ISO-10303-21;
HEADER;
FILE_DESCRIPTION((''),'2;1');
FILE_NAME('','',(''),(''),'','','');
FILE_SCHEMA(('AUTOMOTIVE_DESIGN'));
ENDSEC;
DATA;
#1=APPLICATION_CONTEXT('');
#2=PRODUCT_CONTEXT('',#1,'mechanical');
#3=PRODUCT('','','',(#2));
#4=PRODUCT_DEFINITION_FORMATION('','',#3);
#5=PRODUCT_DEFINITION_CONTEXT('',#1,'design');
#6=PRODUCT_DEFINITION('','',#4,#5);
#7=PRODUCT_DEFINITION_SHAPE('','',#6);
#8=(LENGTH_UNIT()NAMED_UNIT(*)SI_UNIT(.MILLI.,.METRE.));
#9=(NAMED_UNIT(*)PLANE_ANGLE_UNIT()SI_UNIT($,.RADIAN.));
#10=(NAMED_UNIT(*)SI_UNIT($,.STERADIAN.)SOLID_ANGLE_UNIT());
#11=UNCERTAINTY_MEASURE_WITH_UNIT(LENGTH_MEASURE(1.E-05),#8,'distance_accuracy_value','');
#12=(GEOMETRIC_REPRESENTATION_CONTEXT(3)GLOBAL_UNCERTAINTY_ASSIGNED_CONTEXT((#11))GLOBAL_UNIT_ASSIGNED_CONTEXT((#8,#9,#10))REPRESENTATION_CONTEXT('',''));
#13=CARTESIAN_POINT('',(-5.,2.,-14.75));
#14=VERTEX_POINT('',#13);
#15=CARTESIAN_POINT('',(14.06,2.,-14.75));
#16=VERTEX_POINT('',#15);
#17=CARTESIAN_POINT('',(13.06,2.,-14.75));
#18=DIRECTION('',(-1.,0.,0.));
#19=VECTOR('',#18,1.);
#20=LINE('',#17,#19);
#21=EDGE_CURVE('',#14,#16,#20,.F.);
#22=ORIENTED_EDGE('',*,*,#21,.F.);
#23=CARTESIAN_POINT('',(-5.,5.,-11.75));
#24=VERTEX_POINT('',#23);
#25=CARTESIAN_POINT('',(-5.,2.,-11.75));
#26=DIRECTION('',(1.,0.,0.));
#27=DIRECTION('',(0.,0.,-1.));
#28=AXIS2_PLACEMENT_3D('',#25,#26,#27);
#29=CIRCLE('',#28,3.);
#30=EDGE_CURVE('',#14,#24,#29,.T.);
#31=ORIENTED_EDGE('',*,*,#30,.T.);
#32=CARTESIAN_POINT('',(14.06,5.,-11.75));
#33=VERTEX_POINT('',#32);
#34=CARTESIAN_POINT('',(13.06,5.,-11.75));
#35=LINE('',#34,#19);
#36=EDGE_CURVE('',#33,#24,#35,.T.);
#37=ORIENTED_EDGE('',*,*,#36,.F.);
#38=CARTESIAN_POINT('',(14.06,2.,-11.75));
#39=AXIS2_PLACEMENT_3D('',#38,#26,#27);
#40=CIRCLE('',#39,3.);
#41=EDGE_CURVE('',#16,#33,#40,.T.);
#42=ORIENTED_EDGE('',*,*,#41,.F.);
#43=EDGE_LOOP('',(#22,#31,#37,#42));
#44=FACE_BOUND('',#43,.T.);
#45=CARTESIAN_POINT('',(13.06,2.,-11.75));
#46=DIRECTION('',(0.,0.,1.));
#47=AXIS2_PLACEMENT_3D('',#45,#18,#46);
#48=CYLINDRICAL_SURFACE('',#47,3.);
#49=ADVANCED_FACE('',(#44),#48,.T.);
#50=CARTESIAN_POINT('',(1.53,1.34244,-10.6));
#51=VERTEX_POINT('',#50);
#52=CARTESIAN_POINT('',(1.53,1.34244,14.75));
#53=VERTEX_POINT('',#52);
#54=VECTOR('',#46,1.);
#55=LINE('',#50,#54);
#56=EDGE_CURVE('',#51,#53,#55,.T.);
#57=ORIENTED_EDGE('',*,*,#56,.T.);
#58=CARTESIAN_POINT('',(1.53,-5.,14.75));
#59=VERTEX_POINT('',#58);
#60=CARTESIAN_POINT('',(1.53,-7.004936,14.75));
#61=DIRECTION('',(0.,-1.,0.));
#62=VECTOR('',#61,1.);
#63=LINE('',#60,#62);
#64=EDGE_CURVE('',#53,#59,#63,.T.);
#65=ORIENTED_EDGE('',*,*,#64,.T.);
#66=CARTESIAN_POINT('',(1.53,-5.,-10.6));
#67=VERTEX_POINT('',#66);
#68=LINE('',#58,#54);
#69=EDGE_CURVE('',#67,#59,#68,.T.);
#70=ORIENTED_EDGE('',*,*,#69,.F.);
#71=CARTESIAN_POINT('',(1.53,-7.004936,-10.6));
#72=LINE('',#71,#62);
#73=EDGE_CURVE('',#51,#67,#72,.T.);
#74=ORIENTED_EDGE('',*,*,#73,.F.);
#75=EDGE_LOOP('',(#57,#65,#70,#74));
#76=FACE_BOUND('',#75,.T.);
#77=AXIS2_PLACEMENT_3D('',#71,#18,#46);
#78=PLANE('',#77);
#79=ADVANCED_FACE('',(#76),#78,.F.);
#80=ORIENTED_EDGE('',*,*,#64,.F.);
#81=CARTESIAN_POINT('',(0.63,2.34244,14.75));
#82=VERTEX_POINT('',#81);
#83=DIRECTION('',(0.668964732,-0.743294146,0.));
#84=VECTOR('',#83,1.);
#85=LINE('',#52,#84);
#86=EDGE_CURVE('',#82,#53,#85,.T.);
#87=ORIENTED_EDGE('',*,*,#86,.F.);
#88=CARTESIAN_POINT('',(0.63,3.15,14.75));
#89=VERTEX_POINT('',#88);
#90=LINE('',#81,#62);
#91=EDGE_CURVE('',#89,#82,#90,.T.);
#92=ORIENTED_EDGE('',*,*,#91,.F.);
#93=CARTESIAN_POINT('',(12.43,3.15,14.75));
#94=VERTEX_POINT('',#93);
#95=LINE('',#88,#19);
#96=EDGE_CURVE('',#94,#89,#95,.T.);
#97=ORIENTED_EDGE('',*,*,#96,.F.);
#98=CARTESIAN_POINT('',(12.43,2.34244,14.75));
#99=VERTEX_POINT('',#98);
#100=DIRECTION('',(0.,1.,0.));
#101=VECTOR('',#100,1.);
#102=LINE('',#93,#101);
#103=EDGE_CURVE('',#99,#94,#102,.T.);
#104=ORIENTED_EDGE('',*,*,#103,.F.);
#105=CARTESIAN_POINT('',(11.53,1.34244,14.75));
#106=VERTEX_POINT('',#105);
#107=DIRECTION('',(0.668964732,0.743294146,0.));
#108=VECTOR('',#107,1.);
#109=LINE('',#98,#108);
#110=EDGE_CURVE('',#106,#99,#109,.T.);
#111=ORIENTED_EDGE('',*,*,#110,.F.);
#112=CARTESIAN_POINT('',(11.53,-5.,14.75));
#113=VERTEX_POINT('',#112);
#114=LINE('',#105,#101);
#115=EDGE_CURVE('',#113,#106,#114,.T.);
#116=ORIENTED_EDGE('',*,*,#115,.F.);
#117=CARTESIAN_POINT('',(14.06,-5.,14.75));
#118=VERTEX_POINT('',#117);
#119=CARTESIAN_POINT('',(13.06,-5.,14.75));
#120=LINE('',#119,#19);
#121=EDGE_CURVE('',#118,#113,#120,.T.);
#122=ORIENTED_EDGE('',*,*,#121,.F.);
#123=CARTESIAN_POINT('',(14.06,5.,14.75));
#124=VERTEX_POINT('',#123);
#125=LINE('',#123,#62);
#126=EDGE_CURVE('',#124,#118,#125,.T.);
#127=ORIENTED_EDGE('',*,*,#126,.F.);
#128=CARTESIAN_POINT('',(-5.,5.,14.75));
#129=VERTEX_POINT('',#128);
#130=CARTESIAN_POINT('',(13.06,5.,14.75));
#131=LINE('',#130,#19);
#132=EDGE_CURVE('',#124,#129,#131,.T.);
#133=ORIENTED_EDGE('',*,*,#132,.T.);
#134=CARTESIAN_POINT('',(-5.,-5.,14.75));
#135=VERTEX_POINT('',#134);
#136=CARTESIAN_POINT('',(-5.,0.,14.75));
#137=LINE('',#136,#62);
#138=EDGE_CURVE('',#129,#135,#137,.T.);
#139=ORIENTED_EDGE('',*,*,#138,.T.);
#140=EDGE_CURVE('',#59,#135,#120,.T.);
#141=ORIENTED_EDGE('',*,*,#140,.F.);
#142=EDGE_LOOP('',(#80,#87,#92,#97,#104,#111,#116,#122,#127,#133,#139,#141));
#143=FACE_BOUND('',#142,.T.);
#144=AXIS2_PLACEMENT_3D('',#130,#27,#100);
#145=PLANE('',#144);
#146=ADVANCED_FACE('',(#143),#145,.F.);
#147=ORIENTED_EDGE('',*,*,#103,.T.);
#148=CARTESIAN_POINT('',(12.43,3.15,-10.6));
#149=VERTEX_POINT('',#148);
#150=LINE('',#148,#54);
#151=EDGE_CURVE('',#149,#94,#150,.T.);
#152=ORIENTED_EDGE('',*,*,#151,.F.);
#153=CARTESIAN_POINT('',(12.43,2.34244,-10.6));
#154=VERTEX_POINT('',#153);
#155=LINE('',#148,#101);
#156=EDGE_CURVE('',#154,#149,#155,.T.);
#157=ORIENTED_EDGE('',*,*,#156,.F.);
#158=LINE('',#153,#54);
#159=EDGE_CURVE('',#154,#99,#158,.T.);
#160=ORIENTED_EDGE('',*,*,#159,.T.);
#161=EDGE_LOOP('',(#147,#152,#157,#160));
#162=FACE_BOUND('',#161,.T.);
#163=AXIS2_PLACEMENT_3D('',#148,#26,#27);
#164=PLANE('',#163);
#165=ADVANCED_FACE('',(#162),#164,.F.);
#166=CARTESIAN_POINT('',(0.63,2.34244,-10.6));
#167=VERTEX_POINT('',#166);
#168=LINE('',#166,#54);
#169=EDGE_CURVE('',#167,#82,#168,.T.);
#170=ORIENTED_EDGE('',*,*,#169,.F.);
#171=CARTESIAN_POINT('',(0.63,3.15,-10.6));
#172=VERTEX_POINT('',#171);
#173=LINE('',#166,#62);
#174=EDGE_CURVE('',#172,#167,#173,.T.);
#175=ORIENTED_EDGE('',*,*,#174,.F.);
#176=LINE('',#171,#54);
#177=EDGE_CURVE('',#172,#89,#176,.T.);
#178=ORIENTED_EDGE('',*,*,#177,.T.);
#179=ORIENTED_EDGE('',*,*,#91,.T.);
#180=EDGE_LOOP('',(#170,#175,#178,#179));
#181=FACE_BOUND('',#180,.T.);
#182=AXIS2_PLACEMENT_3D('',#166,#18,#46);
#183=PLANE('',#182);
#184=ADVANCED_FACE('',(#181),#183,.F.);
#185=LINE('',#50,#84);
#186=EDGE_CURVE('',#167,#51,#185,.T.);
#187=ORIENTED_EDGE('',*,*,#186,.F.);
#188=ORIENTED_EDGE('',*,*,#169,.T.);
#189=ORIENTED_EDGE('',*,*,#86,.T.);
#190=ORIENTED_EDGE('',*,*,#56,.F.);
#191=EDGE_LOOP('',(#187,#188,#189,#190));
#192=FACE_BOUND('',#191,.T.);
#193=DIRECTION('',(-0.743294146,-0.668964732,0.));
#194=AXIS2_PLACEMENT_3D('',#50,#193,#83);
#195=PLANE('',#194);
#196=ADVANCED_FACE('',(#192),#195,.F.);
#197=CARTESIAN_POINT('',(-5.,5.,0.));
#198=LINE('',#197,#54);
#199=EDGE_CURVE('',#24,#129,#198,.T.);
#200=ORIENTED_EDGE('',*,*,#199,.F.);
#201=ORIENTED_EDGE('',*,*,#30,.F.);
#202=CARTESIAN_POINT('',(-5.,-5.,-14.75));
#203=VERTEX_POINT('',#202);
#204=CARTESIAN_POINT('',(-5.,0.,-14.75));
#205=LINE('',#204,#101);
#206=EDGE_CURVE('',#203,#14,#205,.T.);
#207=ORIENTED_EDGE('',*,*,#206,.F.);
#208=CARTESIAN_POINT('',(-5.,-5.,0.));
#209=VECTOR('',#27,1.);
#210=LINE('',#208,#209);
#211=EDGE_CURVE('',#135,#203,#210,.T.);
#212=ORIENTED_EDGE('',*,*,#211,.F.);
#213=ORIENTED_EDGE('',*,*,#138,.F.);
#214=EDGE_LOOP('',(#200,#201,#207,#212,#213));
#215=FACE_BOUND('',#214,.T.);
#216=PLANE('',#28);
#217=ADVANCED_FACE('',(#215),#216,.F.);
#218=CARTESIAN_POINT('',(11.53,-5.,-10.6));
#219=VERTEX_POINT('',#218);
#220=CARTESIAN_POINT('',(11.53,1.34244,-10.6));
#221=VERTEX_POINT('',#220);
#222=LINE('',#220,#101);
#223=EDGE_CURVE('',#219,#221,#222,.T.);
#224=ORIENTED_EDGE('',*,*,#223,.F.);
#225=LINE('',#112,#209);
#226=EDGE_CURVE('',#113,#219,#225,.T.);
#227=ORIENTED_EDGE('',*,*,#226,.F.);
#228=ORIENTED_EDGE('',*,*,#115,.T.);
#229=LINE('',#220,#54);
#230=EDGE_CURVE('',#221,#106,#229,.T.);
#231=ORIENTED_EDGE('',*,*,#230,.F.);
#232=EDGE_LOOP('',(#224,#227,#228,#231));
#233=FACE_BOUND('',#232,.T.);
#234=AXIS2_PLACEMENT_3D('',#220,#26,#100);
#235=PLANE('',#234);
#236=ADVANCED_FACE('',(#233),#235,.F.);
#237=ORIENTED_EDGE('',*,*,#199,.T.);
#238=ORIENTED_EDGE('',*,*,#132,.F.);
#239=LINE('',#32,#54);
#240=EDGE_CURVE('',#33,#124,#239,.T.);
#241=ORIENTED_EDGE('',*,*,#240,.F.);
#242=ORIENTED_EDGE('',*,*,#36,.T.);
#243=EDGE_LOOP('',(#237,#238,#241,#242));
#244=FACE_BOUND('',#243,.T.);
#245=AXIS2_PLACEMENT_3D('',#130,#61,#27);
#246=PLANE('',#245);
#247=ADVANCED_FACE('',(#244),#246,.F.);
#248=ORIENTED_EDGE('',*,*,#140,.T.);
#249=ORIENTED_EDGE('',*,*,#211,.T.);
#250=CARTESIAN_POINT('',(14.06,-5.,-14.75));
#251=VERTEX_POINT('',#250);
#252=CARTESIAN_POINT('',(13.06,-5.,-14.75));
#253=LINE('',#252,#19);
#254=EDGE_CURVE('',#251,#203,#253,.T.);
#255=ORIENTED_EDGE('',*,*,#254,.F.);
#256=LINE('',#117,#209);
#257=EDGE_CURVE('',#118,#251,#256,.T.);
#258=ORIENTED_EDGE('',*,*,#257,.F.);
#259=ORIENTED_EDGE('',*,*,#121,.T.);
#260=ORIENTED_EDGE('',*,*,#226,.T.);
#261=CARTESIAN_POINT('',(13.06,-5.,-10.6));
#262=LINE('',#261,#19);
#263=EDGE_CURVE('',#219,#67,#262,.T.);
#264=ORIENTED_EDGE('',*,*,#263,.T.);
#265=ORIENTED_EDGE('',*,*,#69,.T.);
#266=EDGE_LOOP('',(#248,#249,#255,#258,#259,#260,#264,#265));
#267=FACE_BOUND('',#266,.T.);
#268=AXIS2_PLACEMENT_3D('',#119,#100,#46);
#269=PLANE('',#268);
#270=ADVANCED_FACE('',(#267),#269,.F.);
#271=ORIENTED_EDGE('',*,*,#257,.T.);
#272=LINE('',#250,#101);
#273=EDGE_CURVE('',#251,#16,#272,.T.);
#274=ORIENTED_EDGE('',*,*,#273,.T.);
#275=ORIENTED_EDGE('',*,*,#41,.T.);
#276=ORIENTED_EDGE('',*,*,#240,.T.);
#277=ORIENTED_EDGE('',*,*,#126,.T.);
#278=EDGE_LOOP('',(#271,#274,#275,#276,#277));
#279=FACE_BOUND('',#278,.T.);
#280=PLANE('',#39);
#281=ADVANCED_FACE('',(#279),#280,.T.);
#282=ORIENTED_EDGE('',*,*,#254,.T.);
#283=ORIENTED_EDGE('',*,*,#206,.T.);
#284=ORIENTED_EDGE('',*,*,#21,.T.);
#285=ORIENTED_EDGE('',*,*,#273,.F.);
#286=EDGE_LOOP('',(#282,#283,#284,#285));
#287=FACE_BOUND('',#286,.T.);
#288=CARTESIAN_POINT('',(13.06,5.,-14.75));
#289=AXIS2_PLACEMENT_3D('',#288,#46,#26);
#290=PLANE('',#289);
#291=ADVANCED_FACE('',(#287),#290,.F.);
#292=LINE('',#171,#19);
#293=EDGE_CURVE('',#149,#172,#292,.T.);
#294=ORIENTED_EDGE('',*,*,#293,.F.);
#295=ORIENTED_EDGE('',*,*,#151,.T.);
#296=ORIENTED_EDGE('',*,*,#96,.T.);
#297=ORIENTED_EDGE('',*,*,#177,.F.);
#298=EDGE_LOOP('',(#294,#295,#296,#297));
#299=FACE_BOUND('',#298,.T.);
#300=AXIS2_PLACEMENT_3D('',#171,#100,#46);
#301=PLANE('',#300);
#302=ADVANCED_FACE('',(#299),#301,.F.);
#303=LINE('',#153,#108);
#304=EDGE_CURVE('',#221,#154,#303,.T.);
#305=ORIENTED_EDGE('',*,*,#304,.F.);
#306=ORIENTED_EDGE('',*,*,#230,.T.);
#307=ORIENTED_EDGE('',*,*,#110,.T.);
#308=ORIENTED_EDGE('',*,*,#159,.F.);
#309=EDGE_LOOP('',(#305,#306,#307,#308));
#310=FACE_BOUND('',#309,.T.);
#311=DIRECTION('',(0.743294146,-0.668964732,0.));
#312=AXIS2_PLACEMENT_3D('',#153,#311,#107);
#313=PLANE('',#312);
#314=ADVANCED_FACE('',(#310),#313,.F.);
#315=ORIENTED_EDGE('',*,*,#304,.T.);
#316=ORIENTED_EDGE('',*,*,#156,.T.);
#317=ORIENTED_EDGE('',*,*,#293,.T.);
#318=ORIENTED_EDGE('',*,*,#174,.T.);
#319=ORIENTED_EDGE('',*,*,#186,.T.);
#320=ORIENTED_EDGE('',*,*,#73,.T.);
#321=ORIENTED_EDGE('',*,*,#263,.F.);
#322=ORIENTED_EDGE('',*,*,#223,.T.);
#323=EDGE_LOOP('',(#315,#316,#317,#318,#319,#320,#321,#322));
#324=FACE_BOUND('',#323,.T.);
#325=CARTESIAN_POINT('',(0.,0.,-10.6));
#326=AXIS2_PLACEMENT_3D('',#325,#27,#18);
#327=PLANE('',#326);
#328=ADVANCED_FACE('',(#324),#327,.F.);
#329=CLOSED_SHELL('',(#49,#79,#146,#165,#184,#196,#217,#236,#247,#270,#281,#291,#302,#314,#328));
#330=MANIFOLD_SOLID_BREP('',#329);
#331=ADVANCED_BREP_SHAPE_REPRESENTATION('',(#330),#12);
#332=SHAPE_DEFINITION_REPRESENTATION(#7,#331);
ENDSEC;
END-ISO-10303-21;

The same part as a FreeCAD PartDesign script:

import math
import FreeCAD as App
import Part
import Sketcher
from FreeCAD import Vector


def edges_at(feature, points):
    """Names of the edges that pass closest to the given points."""
    edges = feature.Shape.Edges
    near = lambda p: min(range(len(edges)), key=lambda i: edges[i].distToShape(Part.Vertex(*p))[0])
    return sorted({f"Edge{near(p) + 1}" for p in points})

doc = App.newDocument("Part")
body = doc.addObject("PartDesign::Body", "Body")

sketch1 = doc.addObject("Sketcher::SketchObject", "Sketch")
body.addObject(sketch1)
sketch1.AttachmentSupport = (doc.YZ_Plane, [""])
sketch1.MapMode = "FlatFace"
sketch1.addGeometry([
    Part.LineSegment(Vector(5, 15, 0), Vector(-5, 15, 0)),
    Part.LineSegment(Vector(-5, 15, 0), Vector(-5, -15, 0)),
    Part.LineSegment(Vector(-5, -15, 0), Vector(5, -15, 0)),
    Part.LineSegment(Vector(5, -15, 0), Vector(5, 15, 0)),
], False)
sketch1.addConstraint([
    Sketcher.Constraint("Coincident", 0, 2, 1, 1),
    Sketcher.Constraint("Coincident", 1, 2, 2, 1),
    Sketcher.Constraint("Coincident", 2, 2, 3, 1),
    Sketcher.Constraint("Coincident", 3, 2, 0, 1),
    Sketcher.Constraint("Horizontal", 0),
    Sketcher.Constraint("Vertical", 1),
    Sketcher.Constraint("Horizontal", 2),
    Sketcher.Constraint("Vertical", 3),
    Sketcher.Constraint("Symmetric", 0, 2, 2, 2, -1, 1),
    Sketcher.Constraint("DistanceX", 0, 2, 0, 1, 10.0),
    Sketcher.Constraint("DistanceY", 1, 2, 1, 1, 29.5),
])
pad1 = doc.addObject("PartDesign::Pad", "Pad")
body.addObject(pad1)
pad1.Profile = sketch1
pad1.Length = 13.06
doc.recompute()

fillet = doc.addObject("PartDesign::Fillet", "Fillet")
body.addObject(fillet)
fillet.Base = (pad1, edges_at(pad1, [(6.53, 5, -14.75)]))
fillet.Radius = 3

sketch2 = doc.addObject("Sketcher::SketchObject", "Sketch001")
body.addObject(sketch2)
sketch2.AttachmentSupport = (doc.XY_Plane, [""])
sketch2.MapMode = "FlatFace"
sketch2.AttachmentOffset = App.Placement(Vector(0, 0, 14.75), App.Rotation())
sketch2.addGeometry([
    Part.LineSegment(Vector(1.5, -7, 0), Vector(11.5, -7, 0)),
    Part.LineSegment(Vector(11.5, -7, 0), Vector(11.5, 1.3, 0)),
    Part.LineSegment(Vector(11.5, 1.3, 0), Vector(12.4, 2.3, 0)),
    Part.LineSegment(Vector(12.4, 2.3, 0), Vector(12.4, 3.1, 0)),
    Part.LineSegment(Vector(12.4, 3.1, 0), Vector(0.6, 3.1, 0)),
    Part.LineSegment(Vector(0.6, 3.1, 0), Vector(0.6, 2.3, 0)),
    Part.LineSegment(Vector(0.6, 2.3, 0), Vector(1.5, 1.3, 0)),
    Part.LineSegment(Vector(1.5, 1.3, 0), Vector(1.5, -7, 0)),
], False)
sketch2.addConstraint([
    Sketcher.Constraint("Coincident", 0, 2, 1, 1),
    Sketcher.Constraint("Coincident", 1, 2, 2, 1),
    Sketcher.Constraint("Coincident", 2, 2, 3, 1),
    Sketcher.Constraint("Coincident", 3, 2, 4, 1),
    Sketcher.Constraint("Coincident", 4, 2, 5, 1),
    Sketcher.Constraint("Coincident", 5, 2, 6, 1),
    Sketcher.Constraint("Coincident", 6, 2, 7, 1),
    Sketcher.Constraint("Coincident", 7, 2, 0, 1),
    Sketcher.Constraint("Horizontal", 0),
    Sketcher.Constraint("Vertical", 1),
    Sketcher.Constraint("Vertical", 3),
    Sketcher.Constraint("Horizontal", 4),
    Sketcher.Constraint("Vertical", 5),
    Sketcher.Constraint("Vertical", 7),
    Sketcher.Constraint("Horizontal", 2, 2, 5, 2),
    Sketcher.Constraint("Horizontal", 1, 2, 6, 2),
    Sketcher.Constraint("Equal", 2, 6),
    Sketcher.Constraint("DistanceX", 0, 1, 0, 2, 10.0),
    Sketcher.Constraint("DistanceX", 4, 2, 4, 1, 11.8),
    Sketcher.Constraint("DistanceY", 1, 2, 2, 2, 1.0),
    Sketcher.Constraint("DistanceX", -1, 1, 0, 2, 11.53),
    Sketcher.Constraint("DistanceY", -1, 1, 3, 2, 3.15),
    Sketcher.Constraint("DistanceY", 3, 1, 3, 2, 0.80756),
    Sketcher.Constraint("DistanceY", 1, 1, 1, 2, 8.347375),
])
pocket1 = doc.addObject("PartDesign::Pocket", "Pocket")
body.addObject(pocket1)
pocket1.Profile = sketch2
pocket1.Length = 25.35

sketch3 = doc.addObject("Sketcher::SketchObject", "Sketch002")
body.addObject(sketch3)
sketch3.AttachmentSupport = (doc.YZ_Plane, [""])
sketch3.MapMode = "FlatFace"
sketch3.AttachmentOffset = App.Placement(Vector(0, 0, 14.06), App.Rotation())
sketch3.addGeometry([
    Part.LineSegment(Vector(-5, -14.8, 0), Vector(2, -14.8, 0)),
    Part.ArcOfCircle(Part.Circle(Vector(2, -11.8, 0), Vector(0, 0, 1), 3), math.radians(-90), math.radians(0)),
    Part.LineSegment(Vector(5, -11.8, 0), Vector(5, 14.8, 0)),
    Part.LineSegment(Vector(5, 14.8, 0), Vector(-5, 14.8, 0)),
    Part.LineSegment(Vector(-5, 14.8, 0), Vector(-5, -14.8, 0)),
], False)
sketch3.addConstraint([
    Sketcher.Constraint("Tangent", 0, 2, 1, 1),
    Sketcher.Constraint("Tangent", 1, 2, 2, 1),
    Sketcher.Constraint("Coincident", 2, 2, 3, 1),
    Sketcher.Constraint("Coincident", 3, 2, 4, 1),
    Sketcher.Constraint("Coincident", 4, 2, 0, 1),
    Sketcher.Constraint("Horizontal", 0),
    Sketcher.Constraint("Vertical", 2),
    Sketcher.Constraint("Horizontal", 3),
    Sketcher.Constraint("Vertical", 4),
    Sketcher.Constraint("Symmetric", 2, 2, 4, 2, -1, 1),
    Sketcher.Constraint("Radius", 1, 3.0),
    Sketcher.Constraint("DistanceX", 0, 1, 0, 2, 7.0),
    Sketcher.Constraint("DistanceY", 2, 1, 2, 2, 26.5),
])
pad2 = doc.addObject("PartDesign::Pad", "Pad001")
body.addObject(pad2)
pad2.Profile = sketch3
pad2.Length = 1
pad2.Reversed = True

sketch4 = doc.addObject("Sketcher::SketchObject", "Sketch003")
body.addObject(sketch4)
sketch4.AttachmentSupport = (doc.YZ_Plane, [""])
sketch4.MapMode = "FlatFace"
sketch4.addGeometry([
    Part.LineSegment(Vector(-5, -14.8, 0), Vector(2, -14.8, 0)),
    Part.ArcOfCircle(Part.Circle(Vector(2, -11.8, 0), Vector(0, 0, 1), 3), math.radians(-90), math.radians(0)),
    Part.LineSegment(Vector(5, -11.8, 0), Vector(5, 14.8, 0)),
    Part.LineSegment(Vector(5, 14.8, 0), Vector(-5, 14.8, 0)),
    Part.LineSegment(Vector(-5, 14.8, 0), Vector(-5, -14.8, 0)),
], False)
sketch4.addConstraint([
    Sketcher.Constraint("Tangent", 0, 2, 1, 1),
    Sketcher.Constraint("Tangent", 1, 2, 2, 1),
    Sketcher.Constraint("Coincident", 2, 2, 3, 1),
    Sketcher.Constraint("Coincident", 3, 2, 4, 1),
    Sketcher.Constraint("Coincident", 4, 2, 0, 1),
    Sketcher.Constraint("Horizontal", 0),
    Sketcher.Constraint("Vertical", 2),
    Sketcher.Constraint("Horizontal", 3),
    Sketcher.Constraint("Vertical", 4),
    Sketcher.Constraint("Symmetric", 2, 2, 4, 2, -1, 1),
    Sketcher.Constraint("Radius", 1, 3.0),
    Sketcher.Constraint("DistanceX", 0, 1, 0, 2, 7.0),
    Sketcher.Constraint("DistanceY", 2, 1, 2, 2, 26.5),
])
pad3 = doc.addObject("PartDesign::Pad", "Pad002")
body.addObject(pad3)
pad3.Profile = sketch4
pad3.Length = 5
pad3.Reversed = True

doc.recompute()
